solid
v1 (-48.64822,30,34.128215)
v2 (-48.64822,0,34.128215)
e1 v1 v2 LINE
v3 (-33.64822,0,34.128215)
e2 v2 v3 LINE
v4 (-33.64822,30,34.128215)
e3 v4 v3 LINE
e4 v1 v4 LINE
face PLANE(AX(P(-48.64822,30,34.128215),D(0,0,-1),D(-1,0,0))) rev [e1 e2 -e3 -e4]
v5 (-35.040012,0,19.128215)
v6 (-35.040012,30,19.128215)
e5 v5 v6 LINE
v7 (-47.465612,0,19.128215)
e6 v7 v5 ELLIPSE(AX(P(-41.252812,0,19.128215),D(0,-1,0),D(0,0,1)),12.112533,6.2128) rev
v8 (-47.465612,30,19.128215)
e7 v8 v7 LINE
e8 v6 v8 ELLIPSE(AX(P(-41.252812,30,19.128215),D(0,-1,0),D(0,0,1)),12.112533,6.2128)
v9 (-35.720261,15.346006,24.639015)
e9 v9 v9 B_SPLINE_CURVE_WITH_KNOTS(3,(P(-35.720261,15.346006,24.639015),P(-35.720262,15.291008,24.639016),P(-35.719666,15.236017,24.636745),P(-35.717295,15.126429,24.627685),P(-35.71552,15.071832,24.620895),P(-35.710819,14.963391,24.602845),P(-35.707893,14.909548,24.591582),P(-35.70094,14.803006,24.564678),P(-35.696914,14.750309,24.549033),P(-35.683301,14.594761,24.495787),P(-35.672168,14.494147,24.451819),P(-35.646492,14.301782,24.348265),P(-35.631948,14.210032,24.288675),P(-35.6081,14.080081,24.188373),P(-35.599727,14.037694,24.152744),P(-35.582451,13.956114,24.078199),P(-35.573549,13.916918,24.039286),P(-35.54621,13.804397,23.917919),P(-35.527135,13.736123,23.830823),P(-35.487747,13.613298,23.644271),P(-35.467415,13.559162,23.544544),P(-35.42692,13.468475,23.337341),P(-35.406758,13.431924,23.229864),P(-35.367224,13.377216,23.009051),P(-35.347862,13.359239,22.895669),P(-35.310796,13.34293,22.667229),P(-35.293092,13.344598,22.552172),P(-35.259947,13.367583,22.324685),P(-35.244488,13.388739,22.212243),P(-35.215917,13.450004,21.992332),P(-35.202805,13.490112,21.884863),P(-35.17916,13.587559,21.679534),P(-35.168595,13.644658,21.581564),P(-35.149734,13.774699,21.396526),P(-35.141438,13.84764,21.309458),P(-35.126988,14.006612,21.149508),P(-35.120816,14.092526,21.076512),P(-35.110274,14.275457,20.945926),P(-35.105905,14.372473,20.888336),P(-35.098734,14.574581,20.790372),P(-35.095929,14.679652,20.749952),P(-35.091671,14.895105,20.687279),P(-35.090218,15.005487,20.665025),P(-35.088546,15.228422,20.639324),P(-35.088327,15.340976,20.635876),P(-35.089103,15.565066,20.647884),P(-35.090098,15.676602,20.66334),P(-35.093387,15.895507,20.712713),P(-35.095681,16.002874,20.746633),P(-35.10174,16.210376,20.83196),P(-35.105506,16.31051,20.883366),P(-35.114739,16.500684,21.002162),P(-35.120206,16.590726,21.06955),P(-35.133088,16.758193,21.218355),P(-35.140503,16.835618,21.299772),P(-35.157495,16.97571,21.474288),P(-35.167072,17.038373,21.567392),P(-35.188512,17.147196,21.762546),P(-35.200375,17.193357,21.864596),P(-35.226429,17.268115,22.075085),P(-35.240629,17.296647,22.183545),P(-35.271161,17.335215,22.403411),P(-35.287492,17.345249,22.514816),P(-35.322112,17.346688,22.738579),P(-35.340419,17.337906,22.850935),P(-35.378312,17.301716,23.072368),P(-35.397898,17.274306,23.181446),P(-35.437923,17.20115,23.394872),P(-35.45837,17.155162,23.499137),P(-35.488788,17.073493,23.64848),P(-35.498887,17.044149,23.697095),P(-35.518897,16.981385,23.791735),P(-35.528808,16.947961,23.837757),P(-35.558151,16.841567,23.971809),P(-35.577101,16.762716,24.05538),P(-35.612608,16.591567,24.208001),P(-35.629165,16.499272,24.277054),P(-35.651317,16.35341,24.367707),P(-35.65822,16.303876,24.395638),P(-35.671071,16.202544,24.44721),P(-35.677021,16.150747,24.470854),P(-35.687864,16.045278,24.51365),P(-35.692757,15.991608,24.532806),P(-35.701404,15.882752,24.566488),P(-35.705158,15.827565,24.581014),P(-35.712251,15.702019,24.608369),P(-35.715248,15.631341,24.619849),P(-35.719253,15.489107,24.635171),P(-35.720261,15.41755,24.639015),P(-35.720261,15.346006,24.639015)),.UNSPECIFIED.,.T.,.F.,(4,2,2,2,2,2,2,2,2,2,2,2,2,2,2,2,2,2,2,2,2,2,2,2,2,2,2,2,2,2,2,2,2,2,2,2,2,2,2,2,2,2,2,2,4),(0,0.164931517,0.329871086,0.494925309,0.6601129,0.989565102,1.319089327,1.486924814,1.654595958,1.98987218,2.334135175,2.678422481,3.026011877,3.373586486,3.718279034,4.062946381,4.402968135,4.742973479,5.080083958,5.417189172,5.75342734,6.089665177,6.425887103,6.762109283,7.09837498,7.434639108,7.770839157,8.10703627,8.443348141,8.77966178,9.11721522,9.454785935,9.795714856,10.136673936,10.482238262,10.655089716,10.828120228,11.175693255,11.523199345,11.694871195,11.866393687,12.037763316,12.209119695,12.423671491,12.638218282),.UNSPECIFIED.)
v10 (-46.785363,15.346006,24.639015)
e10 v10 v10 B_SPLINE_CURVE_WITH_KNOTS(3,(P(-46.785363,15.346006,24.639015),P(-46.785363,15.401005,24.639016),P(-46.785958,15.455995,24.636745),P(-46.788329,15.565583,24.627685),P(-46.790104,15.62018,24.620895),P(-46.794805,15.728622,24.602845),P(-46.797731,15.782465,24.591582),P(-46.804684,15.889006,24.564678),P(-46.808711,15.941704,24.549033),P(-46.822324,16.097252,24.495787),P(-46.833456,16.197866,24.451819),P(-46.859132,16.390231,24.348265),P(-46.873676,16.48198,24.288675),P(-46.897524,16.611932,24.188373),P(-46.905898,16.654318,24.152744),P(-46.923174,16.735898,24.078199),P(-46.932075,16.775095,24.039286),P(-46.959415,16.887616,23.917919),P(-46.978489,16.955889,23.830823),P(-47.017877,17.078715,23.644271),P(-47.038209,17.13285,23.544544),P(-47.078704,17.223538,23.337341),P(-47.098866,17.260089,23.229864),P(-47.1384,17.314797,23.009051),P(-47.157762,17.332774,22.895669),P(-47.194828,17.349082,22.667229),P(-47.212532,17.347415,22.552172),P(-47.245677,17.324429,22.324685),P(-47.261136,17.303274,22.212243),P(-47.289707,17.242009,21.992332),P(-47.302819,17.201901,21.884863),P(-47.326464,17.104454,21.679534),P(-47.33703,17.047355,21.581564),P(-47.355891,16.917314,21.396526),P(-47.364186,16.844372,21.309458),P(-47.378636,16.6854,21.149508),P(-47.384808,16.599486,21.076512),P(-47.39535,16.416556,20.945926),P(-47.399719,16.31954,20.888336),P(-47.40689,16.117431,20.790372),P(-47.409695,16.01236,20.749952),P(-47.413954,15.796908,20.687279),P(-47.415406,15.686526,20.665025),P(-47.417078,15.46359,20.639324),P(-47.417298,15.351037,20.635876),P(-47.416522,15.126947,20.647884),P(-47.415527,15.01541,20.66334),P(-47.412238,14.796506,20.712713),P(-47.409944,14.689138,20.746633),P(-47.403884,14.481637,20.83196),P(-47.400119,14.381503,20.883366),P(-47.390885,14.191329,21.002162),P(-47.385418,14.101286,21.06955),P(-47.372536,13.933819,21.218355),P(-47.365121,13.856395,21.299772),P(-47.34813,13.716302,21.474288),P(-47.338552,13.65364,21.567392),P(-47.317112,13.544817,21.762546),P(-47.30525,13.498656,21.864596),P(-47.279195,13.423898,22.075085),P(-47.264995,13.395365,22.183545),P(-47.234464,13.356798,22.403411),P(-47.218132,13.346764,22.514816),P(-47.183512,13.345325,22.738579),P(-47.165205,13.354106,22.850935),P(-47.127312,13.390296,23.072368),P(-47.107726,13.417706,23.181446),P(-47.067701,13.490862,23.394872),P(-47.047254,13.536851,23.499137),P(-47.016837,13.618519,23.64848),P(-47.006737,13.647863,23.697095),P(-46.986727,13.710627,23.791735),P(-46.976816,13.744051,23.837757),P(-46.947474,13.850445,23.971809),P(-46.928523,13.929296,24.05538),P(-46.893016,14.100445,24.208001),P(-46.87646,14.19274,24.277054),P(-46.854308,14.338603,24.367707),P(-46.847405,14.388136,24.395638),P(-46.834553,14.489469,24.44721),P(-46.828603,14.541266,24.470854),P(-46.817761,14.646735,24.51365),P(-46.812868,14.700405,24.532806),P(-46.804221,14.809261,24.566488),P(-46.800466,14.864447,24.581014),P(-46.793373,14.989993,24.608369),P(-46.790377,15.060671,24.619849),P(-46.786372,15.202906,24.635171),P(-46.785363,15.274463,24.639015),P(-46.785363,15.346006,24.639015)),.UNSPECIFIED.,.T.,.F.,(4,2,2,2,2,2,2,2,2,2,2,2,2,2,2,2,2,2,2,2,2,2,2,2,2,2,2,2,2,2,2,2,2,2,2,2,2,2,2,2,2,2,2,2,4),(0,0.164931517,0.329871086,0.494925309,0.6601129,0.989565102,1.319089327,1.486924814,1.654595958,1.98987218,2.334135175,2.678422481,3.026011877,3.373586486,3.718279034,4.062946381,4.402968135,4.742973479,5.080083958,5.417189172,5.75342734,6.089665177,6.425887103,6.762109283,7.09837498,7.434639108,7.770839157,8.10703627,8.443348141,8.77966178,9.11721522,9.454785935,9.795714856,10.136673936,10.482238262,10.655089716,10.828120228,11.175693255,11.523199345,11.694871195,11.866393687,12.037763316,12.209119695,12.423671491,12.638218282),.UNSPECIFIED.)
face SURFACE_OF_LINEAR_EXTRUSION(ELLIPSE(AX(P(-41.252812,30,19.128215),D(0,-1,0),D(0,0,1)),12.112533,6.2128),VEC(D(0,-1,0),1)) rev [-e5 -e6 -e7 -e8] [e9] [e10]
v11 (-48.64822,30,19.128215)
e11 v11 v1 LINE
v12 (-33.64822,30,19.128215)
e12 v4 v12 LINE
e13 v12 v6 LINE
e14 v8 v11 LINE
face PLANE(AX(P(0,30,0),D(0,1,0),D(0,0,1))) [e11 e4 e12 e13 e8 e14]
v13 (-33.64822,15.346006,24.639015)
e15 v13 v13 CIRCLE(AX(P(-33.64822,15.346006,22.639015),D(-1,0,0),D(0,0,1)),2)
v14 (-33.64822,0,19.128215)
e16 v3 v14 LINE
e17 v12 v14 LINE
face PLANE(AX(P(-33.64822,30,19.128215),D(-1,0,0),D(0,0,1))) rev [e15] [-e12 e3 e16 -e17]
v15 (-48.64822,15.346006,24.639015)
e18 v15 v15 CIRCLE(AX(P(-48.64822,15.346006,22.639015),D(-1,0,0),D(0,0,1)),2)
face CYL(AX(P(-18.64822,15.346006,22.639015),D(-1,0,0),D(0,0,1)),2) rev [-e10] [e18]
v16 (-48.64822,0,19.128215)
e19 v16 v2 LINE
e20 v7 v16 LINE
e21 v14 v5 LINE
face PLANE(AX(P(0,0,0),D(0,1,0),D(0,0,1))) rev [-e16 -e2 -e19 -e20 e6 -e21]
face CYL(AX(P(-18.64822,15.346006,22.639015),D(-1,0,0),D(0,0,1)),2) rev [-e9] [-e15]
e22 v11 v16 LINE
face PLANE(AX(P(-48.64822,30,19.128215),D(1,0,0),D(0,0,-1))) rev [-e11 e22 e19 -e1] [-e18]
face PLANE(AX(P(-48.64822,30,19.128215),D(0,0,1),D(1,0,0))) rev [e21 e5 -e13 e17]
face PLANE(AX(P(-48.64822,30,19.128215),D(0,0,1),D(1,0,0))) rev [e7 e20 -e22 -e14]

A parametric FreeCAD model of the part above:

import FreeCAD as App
import Part
import Sketcher


def add_polygon(sketch, points):
    """Adds a closed chain of lines whose ends are joined by coincident constraints."""
    first, n = sketch.GeometryCount, len(points)
    for a, b in zip(points, points[1:] + points[:1]):
        sketch.addGeometry(Part.LineSegment(App.Vector(*a, 0), App.Vector(*b, 0)), False)
    for i in range(n):
        sketch.addConstraint(Sketcher.Constraint("Coincident", first + i, 2, first + (i + 1) % n, 1))

doc = App.newDocument("Part")
body = doc.addObject("PartDesign::Body", "Body")

# Sketch on XZ plane
sketch1 = doc.addObject("Sketcher::SketchObject", "Sketch")
body.addObject(sketch1)
sketch1.AttachmentSupport = (doc.XZ_Plane, [""])
sketch1.MapMode = "FlatFace"
add_polygon(sketch1, [(-49, 19), (-49, 34), (-34, 34), (-34, 19)])  # lines 0-3
sketch1.addConstraint([
    Sketcher.Constraint("Vertical", 0),
    Sketcher.Constraint("Horizontal", 1),
    Sketcher.Constraint("Vertical", 2),
    Sketcher.Constraint("Horizontal", 3),
    Sketcher.Constraint("Equal", 3, 0),
    Sketcher.Constraint("DistanceX", 1, 1, 1, 2, 15.0),
    Sketcher.Constraint("DistanceX", 0, 2, -1, 1, 48.64822),
    Sketcher.Constraint("DistanceY", -1, 1, 0, 2, 34.128215),
])
pad1 = doc.addObject("PartDesign::Pad", "Pad")
body.addObject(pad1)
pad1.Profile = sketch1
pad1.Length = 30
pad1.Reversed = True

# Sketch on XZ plane
sketch2 = doc.addObject("Sketcher::SketchObject", "Sketch001")
body.addObject(sketch2)
sketch2.AttachmentSupport = (doc.XZ_Plane, [""])
sketch2.MapMode = "FlatFace"
sketch2.addGeometry(Part.Ellipse(App.Vector(-41.252812, 31.240749, 0), App.Vector(-47.465612, 19.128215, 0), App.Vector(-41.252812, 19.128215, 0)), False)
sketch2.addConstraint(Sketcher.Constraint("Block", 0))
pocket1 = doc.addObject("PartDesign::Pocket", "Pocket")
body.addObject(pocket1)
pocket1.Profile = sketch2
pocket1.Length = 30

# Sketch on YZ plane
sketch3 = doc.addObject("Sketcher::SketchObject", "Sketch002")
body.addObject(sketch3)
sketch3.AttachmentSupport = (doc.YZ_Plane, [""])
sketch3.MapMode = "FlatFace"
sketch3.AttachmentOffset = App.Placement(App.Vector(0, 0, -48.64822), App.Rotation())
sketch3.addGeometry(Part.Circle(App.Vector(15.3, 22.6, 0), App.Vector(0, 0, 1), 2), False)
sketch3.addConstraint([
    Sketcher.Constraint("Diameter", 0, 4.0),
    Sketcher.Constraint("DistanceX", -1, 1, 0, 3, 15.346006),
    Sketcher.Constraint("DistanceY", -1, 1, 0, 3, 22.639015),
])
pocket2 = doc.addObject("PartDesign::Pocket", "Pocket001")
body.addObject(pocket2)
pocket2.Profile = sketch3
pocket2.Length = 30
pocket2.Reversed = True

doc.recompute()
